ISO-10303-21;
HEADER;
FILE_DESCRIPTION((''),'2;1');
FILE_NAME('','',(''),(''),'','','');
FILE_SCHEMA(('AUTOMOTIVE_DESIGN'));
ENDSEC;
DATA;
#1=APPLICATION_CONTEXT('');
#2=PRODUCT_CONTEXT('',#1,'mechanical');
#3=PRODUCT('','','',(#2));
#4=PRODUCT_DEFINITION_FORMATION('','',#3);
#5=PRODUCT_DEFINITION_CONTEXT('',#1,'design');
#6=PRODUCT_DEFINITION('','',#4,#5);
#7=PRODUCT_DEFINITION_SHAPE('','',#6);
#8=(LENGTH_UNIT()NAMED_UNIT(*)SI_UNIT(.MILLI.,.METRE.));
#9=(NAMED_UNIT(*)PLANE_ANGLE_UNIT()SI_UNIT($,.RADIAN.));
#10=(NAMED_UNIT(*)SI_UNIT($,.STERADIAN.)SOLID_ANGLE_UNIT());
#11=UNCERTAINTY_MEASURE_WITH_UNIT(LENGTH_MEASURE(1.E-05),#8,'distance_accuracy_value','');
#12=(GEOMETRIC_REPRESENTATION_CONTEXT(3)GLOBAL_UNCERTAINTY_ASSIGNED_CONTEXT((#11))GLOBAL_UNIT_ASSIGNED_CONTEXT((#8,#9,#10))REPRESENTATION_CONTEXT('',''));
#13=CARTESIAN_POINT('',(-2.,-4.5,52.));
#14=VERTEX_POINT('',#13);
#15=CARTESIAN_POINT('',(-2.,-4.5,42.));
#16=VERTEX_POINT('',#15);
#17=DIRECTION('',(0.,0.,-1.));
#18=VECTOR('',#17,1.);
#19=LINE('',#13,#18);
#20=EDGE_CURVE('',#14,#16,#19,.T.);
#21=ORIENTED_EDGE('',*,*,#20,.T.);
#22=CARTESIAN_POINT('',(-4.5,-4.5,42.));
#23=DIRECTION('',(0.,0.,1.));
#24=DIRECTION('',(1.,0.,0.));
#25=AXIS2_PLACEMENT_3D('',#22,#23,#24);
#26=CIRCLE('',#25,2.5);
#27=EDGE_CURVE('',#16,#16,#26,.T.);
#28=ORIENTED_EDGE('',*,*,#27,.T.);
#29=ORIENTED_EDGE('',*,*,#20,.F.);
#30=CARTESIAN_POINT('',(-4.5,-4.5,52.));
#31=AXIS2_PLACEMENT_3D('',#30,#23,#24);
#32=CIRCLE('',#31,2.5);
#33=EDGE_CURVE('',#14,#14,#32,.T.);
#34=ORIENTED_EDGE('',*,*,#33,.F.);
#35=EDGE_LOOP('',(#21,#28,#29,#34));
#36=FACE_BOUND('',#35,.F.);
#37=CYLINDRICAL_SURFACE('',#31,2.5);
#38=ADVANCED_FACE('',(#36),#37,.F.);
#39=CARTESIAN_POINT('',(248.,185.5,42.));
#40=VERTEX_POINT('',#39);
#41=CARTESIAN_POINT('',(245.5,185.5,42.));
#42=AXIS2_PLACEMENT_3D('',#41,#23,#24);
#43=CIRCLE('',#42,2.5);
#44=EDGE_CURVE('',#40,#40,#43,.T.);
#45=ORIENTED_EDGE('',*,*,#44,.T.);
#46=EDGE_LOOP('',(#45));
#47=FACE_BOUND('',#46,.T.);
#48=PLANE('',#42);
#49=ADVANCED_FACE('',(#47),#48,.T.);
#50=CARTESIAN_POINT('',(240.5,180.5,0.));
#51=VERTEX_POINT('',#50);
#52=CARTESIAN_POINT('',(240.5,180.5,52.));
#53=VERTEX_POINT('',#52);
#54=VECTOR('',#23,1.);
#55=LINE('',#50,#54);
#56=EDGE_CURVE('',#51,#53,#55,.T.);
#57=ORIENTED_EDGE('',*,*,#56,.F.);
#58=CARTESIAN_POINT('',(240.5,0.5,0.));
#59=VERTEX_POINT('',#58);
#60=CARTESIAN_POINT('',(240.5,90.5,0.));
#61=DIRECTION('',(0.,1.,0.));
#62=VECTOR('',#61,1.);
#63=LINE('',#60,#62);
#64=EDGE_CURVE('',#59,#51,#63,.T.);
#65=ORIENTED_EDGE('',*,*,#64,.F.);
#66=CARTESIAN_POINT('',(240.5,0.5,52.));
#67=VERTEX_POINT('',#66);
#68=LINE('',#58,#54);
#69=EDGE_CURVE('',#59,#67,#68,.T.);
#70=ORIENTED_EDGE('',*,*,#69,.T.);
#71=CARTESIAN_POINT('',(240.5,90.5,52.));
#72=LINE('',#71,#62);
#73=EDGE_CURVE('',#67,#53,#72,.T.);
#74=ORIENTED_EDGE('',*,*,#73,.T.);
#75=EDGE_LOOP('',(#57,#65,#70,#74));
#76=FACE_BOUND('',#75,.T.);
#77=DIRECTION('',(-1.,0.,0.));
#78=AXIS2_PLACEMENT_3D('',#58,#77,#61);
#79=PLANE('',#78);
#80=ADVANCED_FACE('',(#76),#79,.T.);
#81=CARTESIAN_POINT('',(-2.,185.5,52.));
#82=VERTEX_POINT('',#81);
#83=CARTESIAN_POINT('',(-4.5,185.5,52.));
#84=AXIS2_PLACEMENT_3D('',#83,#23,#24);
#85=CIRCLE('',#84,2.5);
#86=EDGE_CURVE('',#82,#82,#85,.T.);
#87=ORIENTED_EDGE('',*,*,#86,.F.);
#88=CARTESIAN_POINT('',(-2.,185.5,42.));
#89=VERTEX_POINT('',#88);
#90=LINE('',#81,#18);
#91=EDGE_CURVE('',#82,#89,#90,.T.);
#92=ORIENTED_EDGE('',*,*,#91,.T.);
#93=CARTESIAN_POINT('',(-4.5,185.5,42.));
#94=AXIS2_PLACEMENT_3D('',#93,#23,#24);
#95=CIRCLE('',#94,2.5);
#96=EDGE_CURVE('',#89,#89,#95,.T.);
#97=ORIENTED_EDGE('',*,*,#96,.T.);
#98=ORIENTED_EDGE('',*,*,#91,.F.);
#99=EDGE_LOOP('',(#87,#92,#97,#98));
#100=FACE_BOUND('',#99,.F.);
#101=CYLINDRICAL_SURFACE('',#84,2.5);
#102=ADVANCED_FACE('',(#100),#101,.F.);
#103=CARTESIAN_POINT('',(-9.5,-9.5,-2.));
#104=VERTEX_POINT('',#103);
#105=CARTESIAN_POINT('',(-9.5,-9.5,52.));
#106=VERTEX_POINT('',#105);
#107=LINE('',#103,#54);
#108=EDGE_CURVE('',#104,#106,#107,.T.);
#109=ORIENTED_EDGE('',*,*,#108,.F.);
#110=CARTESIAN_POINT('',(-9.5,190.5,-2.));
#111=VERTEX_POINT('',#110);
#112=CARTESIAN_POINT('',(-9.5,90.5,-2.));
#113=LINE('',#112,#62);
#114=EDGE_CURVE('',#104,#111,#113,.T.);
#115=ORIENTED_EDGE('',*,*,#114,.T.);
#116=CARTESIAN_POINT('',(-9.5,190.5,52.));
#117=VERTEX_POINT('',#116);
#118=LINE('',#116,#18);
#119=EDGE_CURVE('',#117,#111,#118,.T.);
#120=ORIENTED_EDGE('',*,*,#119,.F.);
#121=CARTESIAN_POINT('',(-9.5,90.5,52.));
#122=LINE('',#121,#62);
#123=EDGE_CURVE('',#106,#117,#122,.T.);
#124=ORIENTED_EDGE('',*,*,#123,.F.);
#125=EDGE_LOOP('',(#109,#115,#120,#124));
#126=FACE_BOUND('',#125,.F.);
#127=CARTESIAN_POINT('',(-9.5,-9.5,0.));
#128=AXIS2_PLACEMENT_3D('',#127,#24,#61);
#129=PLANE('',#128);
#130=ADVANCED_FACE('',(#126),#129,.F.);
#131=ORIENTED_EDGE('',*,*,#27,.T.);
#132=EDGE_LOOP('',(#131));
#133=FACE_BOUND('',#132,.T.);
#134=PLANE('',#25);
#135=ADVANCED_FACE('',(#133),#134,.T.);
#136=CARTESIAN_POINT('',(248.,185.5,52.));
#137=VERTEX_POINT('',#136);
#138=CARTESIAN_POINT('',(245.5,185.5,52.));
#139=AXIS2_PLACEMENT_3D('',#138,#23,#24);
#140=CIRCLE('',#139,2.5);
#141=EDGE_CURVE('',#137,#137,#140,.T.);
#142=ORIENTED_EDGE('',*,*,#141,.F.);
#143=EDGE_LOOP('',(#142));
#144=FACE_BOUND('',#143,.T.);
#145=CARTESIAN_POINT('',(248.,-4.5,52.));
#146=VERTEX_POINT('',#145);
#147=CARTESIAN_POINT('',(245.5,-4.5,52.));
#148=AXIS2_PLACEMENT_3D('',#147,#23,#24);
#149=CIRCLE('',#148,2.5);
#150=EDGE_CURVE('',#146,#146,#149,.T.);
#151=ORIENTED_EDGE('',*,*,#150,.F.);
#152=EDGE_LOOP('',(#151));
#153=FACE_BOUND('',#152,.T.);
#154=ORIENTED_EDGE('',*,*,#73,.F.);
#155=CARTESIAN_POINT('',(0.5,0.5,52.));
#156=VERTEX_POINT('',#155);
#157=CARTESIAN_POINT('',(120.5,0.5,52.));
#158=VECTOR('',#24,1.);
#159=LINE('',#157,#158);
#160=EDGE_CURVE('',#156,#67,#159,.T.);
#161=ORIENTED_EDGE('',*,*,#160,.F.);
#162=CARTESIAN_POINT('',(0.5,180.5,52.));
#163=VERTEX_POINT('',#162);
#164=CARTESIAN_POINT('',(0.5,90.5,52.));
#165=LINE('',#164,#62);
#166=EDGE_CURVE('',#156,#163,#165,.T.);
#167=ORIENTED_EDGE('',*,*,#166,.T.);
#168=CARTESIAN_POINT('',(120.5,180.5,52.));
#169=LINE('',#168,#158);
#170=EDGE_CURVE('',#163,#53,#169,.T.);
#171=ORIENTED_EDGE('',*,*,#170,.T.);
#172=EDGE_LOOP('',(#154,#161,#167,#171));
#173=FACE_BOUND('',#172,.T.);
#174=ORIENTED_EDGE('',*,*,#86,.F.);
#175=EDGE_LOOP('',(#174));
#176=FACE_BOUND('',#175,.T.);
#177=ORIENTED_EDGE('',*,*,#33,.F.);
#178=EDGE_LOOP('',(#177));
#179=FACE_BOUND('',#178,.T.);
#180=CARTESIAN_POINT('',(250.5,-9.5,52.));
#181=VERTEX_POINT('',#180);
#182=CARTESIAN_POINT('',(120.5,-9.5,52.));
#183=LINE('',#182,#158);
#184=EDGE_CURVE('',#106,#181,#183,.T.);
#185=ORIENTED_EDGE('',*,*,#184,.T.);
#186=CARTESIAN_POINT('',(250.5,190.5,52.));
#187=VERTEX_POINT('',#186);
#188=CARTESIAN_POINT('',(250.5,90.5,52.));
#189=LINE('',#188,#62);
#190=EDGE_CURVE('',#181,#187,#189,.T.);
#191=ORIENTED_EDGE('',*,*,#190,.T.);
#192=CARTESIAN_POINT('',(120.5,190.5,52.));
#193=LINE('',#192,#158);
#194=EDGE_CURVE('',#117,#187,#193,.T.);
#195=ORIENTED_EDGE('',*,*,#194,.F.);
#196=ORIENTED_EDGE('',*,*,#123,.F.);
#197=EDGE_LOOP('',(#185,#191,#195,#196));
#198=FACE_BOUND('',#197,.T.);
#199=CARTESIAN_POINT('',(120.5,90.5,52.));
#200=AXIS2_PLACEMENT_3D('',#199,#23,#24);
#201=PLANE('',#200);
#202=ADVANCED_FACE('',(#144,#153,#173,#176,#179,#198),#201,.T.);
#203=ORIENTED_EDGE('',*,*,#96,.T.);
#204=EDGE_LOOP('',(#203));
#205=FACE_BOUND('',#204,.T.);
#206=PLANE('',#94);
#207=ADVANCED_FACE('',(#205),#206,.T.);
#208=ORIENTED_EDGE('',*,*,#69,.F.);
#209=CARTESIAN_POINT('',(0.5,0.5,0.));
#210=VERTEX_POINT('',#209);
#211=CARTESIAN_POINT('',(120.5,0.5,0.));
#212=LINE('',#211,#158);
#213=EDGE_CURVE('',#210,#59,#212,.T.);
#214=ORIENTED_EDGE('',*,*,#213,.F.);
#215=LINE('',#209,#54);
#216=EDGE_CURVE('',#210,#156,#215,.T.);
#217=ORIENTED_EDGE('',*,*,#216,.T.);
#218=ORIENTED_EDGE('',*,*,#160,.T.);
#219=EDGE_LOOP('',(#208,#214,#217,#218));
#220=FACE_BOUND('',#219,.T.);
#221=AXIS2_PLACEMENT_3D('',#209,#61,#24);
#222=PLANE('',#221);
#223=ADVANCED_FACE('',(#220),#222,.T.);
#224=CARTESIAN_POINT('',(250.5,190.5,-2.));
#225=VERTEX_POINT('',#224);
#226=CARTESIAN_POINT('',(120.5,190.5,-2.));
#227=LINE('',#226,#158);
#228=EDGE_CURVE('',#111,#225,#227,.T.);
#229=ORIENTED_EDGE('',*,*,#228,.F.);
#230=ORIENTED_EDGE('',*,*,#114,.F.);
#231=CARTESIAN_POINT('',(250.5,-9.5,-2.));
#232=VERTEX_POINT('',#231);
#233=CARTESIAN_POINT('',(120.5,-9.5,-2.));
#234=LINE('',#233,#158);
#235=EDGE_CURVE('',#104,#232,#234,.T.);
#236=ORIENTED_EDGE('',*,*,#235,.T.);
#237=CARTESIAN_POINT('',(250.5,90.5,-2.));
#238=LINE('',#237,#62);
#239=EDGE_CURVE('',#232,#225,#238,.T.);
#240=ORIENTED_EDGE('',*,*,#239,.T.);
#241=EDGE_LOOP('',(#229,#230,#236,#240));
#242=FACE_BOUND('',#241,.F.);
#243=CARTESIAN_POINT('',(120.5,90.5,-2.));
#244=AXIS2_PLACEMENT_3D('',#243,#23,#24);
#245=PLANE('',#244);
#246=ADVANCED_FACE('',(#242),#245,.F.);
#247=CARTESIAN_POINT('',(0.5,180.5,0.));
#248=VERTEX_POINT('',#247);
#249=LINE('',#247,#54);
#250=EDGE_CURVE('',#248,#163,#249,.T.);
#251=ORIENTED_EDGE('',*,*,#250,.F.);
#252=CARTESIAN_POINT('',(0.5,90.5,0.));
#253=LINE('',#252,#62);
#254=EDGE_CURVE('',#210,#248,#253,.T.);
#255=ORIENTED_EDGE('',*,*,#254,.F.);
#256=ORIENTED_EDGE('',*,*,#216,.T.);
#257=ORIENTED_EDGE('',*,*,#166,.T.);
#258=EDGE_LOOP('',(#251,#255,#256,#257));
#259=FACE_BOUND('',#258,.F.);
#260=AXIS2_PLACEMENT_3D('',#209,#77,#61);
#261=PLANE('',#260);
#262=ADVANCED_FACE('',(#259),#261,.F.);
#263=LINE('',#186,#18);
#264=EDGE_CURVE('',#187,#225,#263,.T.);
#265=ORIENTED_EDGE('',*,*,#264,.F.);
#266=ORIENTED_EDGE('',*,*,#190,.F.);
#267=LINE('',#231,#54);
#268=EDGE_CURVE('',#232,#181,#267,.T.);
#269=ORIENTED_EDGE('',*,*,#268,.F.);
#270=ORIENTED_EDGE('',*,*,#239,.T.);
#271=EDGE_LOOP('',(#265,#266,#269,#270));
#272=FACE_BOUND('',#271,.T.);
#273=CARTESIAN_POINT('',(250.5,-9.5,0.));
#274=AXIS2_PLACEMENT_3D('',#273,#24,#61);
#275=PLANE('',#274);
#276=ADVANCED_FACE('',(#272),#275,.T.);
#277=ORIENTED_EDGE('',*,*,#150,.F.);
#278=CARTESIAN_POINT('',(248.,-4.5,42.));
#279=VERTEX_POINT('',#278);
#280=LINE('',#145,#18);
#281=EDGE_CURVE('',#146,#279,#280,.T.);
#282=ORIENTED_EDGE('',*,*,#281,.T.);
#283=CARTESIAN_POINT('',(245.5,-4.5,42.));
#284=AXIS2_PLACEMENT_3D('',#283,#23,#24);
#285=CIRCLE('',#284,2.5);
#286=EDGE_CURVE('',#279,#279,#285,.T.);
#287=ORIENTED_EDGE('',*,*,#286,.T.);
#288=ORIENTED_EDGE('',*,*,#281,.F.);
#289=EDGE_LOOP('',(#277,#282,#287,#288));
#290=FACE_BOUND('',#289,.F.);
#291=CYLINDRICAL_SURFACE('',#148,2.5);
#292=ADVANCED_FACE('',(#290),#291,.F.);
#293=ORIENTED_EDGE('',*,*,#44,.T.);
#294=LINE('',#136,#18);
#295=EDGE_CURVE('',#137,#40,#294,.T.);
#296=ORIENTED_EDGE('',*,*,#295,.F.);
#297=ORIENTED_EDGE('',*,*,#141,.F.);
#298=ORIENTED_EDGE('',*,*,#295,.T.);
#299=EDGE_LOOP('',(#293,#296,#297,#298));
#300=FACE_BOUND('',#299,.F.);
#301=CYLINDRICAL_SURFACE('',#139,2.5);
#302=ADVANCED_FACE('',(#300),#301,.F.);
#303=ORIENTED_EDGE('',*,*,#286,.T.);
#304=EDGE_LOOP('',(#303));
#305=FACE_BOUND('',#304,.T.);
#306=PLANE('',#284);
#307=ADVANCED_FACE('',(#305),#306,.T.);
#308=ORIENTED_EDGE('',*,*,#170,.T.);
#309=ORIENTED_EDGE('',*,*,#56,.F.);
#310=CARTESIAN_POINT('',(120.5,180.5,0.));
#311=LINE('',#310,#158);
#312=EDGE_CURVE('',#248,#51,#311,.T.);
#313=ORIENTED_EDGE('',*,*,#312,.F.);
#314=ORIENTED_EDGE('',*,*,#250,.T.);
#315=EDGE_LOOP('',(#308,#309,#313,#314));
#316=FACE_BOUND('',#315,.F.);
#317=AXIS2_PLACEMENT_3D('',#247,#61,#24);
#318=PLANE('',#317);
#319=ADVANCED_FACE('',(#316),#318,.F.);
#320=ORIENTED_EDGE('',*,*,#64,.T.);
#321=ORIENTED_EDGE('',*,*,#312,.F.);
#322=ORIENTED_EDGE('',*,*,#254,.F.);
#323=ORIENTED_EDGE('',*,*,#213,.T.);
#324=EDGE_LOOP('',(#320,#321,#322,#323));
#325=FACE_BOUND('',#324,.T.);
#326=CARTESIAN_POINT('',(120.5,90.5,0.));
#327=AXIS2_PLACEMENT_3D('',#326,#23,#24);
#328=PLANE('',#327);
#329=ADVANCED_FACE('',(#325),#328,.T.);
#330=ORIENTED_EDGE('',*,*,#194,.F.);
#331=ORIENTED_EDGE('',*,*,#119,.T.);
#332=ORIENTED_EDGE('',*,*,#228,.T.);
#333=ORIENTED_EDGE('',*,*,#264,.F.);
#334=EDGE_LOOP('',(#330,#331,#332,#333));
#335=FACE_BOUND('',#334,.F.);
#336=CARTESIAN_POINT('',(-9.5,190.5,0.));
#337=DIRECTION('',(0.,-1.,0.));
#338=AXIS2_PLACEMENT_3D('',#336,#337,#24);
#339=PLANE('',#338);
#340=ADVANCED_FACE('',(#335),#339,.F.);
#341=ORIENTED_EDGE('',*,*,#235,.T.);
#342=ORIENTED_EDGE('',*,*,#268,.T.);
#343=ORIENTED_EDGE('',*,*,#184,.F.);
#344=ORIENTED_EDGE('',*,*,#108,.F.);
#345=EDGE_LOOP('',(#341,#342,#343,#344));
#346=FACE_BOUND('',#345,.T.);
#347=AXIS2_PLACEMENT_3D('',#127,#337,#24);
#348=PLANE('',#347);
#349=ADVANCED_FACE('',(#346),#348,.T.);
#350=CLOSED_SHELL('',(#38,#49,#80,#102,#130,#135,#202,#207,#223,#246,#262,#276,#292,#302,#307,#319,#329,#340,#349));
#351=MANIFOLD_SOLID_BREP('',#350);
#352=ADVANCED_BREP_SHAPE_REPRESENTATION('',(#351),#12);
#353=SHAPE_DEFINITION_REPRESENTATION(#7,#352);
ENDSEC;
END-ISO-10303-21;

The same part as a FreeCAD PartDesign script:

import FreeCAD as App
import Part
import Sketcher
Q = App.Units.Quantity


def add_polygon(sketch, points):
    """Adds a closed chain of lines whose ends are joined by coincident constraints."""
    first, n = sketch.GeometryCount, len(points)
    for a, b in zip(points, points[1:] + points[:1]):
        sketch.addGeometry(Part.LineSegment(App.Vector(*a, 0), App.Vector(*b, 0)), False)
    for i in range(n):
        sketch.addConstraint(Sketcher.Constraint("Coincident", first + i, 2, first + (i + 1) % n, 1))

doc = App.newDocument("Part")
params = doc.addObject("Spreadsheet::Sheet", "Params")
for row, (alias, value) in enumerate([
    ("sketch1_width", "260 mm"),
    ("sketch1_width2", "240 mm"),
    ("sketch1_height", "200 mm"),
    ("sketch1_height2", "180 mm"),
    ("pad1_length", "52 mm"),
    ("sketch2_width", "260 mm"),
    ("sketch2_height", "200 mm"),
    ("pad2_length", "2 mm"),
    ("sketch3_diameter", "5 mm"),
    ("pocket1_length", "10 mm"),
], start=1):
    params.set(f"A{row}", alias)
    params.set(f"B{row}", "=" + value)
    params.setAlias(f"B{row}", alias)

body = doc.addObject("PartDesign::Body", "Body")

sketch1 = body.newObject("Sketcher::SketchObject", "Sketch")
sketch1.AttachmentSupport = (doc.getObject("XY_Plane"), [""])
sketch1.MapMode = "FlatFace"
add_polygon(sketch1, [(-10, 190), (-10, -10), (250, -10), (250, 190)])
add_polygon(sketch1, [(240, 0), (0, 0), (0, 180), (240, 180)])
sketch1.addConstraint(Sketcher.Constraint("Vertical", 0))
sketch1.addConstraint(Sketcher.Constraint("Horizontal", 1))
sketch1.addConstraint(Sketcher.Constraint("Vertical", 2))
sketch1.addConstraint(Sketcher.Constraint("Horizontal", 3))
sketch1.addConstraint(Sketcher.Constraint("Horizontal", 4))
sketch1.addConstraint(Sketcher.Constraint("Vertical", 5))
sketch1.addConstraint(Sketcher.Constraint("Horizontal", 6))
sketch1.addConstraint(Sketcher.Constraint("Vertical", 7))
sketch1.addConstraint(Sketcher.Constraint("DistanceX", 1, 1, 1, 2, Q("260 mm")))
sketch1.addConstraint(Sketcher.Constraint("DistanceX", 4, 2, 4, 1, Q("240 mm")))
sketch1.addConstraint(Sketcher.Constraint("DistanceY", 0, 2, 0, 1, Q("200 mm")))
sketch1.addConstraint(Sketcher.Constraint("DistanceY", 5, 1, 5, 2, Q("180 mm")))
sketch1.addConstraint(Sketcher.Constraint("DistanceX", 0, 2, 4, 2, Q("10 mm")))
sketch1.addConstraint(Sketcher.Constraint("DistanceY", 0, 2, 4, 2, Q("10 mm")))
sketch1.addConstraint(Sketcher.Constraint("DistanceX", 0, 2, -1, 1, Q("9.5 mm")))
sketch1.addConstraint(Sketcher.Constraint("DistanceY", 0, 2, -1, 1, Q("9.5 mm")))
sketch1.setExpression("Constraints[16]", "Params.sketch1_width")
sketch1.setExpression("Constraints[17]", "Params.sketch1_width2")
sketch1.setExpression("Constraints[18]", "Params.sketch1_height")
sketch1.setExpression("Constraints[19]", "Params.sketch1_height2")
pad1 = body.newObject("PartDesign::Pad", "Pad")
pad1.Profile = sketch1
pad1.setExpression("Length", "Params.pad1_length")

sketch2 = body.newObject("Sketcher::SketchObject", "Sketch001")
sketch2.AttachmentSupport = (doc.getObject("XY_Plane"), [""])
sketch2.MapMode = "FlatFace"
add_polygon(sketch2, [(-10, 190), (-10, -10), (250, -10), (250, 190)])
sketch2.addConstraint(Sketcher.Constraint("Vertical", 0))
sketch2.addConstraint(Sketcher.Constraint("Horizontal", 1))
sketch2.addConstraint(Sketcher.Constraint("Vertical", 2))
sketch2.addConstraint(Sketcher.Constraint("Horizontal", 3))
sketch2.addConstraint(Sketcher.Constraint("DistanceX", 1, 1, 1, 2, Q("260 mm")))
sketch2.addConstraint(Sketcher.Constraint("DistanceY", 0, 2, 0, 1, Q("200 mm")))
sketch2.addConstraint(Sketcher.Constraint("DistanceX", 0, 2, -1, 1, Q("9.5 mm")))
sketch2.addConstraint(Sketcher.Constraint("DistanceY", 0, 2, -1, 1, Q("9.5 mm")))
sketch2.setExpression("Constraints[8]", "Params.sketch2_width")
sketch2.setExpression("Constraints[9]", "Params.sketch2_height")
pad2 = body.newObject("PartDesign::Pad", "Pad001")
pad2.Profile = sketch2
pad2.setExpression("Length", "Params.pad2_length")
pad2.Reversed = True

sketch3 = body.newObject("Sketcher::SketchObject", "Sketch002")
sketch3.AttachmentSupport = (doc.getObject("XY_Plane"), [""])
sketch3.MapMode = "FlatFace"
sketch3.AttachmentOffset = App.Placement(App.Vector(0, 0, 52), App.Rotation())
sketch3.addGeometry(Part.Circle(App.Vector(245.5, 185.5, 0), App.Vector(0, 0, 1), 2.5), False)
sketch3.addGeometry(Part.Circle(App.Vector(245.5, -4.5, 0), App.Vector(0, 0, 1), 2.5), False)
sketch3.addGeometry(Part.Circle(App.Vector(-4.5, -4.5, 0), App.Vector(0, 0, 1), 2.5), False)
sketch3.addGeometry(Part.Circle(App.Vector(-4.5, 185.5, 0), App.Vector(0, 0, 1), 2.5), False)
sketch3.addConstraint(Sketcher.Constraint("Equal", 0, 1))
sketch3.addConstraint(Sketcher.Constraint("Equal", 1, 2))
sketch3.addConstraint(Sketcher.Constraint("Equal", 2, 3))
sketch3.addConstraint(Sketcher.Constraint("Horizontal", 1, 3, 2, 3))
sketch3.addConstraint(Sketcher.Constraint("Horizontal", 0, 3, 3, 3))
sketch3.addConstraint(Sketcher.Constraint("Vertical", 0, 3, 1, 3))
sketch3.addConstraint(Sketcher.Constraint("Vertical", 2, 3, 3, 3))
sketch3.addConstraint(Sketcher.Constraint("Diameter", 0, Q("5 mm")))
sketch3.addConstraint(Sketcher.Constraint("DistanceY", 1, 3, 0, 3, Q("190 mm")))
sketch3.addConstraint(Sketcher.Constraint("DistanceX", 2, 3, 1, 3, Q("250 mm")))
sketch3.addConstraint(Sketcher.Constraint("DistanceX", -1, 1, 0, 3, Q("245.5 mm")))
sketch3.addConstraint(Sketcher.Constraint("DistanceY", -1, 1, 0, 3, Q("185.5 mm")))
sketch3.setExpression("Constraints[7]", "Params.sketch3_diameter")
pocket1 = body.newObject("PartDesign::Pocket", "Pocket")
pocket1.Profile = sketch3
pocket1.setExpression("Length", "Params.pocket1_length")

doc.recompute()
